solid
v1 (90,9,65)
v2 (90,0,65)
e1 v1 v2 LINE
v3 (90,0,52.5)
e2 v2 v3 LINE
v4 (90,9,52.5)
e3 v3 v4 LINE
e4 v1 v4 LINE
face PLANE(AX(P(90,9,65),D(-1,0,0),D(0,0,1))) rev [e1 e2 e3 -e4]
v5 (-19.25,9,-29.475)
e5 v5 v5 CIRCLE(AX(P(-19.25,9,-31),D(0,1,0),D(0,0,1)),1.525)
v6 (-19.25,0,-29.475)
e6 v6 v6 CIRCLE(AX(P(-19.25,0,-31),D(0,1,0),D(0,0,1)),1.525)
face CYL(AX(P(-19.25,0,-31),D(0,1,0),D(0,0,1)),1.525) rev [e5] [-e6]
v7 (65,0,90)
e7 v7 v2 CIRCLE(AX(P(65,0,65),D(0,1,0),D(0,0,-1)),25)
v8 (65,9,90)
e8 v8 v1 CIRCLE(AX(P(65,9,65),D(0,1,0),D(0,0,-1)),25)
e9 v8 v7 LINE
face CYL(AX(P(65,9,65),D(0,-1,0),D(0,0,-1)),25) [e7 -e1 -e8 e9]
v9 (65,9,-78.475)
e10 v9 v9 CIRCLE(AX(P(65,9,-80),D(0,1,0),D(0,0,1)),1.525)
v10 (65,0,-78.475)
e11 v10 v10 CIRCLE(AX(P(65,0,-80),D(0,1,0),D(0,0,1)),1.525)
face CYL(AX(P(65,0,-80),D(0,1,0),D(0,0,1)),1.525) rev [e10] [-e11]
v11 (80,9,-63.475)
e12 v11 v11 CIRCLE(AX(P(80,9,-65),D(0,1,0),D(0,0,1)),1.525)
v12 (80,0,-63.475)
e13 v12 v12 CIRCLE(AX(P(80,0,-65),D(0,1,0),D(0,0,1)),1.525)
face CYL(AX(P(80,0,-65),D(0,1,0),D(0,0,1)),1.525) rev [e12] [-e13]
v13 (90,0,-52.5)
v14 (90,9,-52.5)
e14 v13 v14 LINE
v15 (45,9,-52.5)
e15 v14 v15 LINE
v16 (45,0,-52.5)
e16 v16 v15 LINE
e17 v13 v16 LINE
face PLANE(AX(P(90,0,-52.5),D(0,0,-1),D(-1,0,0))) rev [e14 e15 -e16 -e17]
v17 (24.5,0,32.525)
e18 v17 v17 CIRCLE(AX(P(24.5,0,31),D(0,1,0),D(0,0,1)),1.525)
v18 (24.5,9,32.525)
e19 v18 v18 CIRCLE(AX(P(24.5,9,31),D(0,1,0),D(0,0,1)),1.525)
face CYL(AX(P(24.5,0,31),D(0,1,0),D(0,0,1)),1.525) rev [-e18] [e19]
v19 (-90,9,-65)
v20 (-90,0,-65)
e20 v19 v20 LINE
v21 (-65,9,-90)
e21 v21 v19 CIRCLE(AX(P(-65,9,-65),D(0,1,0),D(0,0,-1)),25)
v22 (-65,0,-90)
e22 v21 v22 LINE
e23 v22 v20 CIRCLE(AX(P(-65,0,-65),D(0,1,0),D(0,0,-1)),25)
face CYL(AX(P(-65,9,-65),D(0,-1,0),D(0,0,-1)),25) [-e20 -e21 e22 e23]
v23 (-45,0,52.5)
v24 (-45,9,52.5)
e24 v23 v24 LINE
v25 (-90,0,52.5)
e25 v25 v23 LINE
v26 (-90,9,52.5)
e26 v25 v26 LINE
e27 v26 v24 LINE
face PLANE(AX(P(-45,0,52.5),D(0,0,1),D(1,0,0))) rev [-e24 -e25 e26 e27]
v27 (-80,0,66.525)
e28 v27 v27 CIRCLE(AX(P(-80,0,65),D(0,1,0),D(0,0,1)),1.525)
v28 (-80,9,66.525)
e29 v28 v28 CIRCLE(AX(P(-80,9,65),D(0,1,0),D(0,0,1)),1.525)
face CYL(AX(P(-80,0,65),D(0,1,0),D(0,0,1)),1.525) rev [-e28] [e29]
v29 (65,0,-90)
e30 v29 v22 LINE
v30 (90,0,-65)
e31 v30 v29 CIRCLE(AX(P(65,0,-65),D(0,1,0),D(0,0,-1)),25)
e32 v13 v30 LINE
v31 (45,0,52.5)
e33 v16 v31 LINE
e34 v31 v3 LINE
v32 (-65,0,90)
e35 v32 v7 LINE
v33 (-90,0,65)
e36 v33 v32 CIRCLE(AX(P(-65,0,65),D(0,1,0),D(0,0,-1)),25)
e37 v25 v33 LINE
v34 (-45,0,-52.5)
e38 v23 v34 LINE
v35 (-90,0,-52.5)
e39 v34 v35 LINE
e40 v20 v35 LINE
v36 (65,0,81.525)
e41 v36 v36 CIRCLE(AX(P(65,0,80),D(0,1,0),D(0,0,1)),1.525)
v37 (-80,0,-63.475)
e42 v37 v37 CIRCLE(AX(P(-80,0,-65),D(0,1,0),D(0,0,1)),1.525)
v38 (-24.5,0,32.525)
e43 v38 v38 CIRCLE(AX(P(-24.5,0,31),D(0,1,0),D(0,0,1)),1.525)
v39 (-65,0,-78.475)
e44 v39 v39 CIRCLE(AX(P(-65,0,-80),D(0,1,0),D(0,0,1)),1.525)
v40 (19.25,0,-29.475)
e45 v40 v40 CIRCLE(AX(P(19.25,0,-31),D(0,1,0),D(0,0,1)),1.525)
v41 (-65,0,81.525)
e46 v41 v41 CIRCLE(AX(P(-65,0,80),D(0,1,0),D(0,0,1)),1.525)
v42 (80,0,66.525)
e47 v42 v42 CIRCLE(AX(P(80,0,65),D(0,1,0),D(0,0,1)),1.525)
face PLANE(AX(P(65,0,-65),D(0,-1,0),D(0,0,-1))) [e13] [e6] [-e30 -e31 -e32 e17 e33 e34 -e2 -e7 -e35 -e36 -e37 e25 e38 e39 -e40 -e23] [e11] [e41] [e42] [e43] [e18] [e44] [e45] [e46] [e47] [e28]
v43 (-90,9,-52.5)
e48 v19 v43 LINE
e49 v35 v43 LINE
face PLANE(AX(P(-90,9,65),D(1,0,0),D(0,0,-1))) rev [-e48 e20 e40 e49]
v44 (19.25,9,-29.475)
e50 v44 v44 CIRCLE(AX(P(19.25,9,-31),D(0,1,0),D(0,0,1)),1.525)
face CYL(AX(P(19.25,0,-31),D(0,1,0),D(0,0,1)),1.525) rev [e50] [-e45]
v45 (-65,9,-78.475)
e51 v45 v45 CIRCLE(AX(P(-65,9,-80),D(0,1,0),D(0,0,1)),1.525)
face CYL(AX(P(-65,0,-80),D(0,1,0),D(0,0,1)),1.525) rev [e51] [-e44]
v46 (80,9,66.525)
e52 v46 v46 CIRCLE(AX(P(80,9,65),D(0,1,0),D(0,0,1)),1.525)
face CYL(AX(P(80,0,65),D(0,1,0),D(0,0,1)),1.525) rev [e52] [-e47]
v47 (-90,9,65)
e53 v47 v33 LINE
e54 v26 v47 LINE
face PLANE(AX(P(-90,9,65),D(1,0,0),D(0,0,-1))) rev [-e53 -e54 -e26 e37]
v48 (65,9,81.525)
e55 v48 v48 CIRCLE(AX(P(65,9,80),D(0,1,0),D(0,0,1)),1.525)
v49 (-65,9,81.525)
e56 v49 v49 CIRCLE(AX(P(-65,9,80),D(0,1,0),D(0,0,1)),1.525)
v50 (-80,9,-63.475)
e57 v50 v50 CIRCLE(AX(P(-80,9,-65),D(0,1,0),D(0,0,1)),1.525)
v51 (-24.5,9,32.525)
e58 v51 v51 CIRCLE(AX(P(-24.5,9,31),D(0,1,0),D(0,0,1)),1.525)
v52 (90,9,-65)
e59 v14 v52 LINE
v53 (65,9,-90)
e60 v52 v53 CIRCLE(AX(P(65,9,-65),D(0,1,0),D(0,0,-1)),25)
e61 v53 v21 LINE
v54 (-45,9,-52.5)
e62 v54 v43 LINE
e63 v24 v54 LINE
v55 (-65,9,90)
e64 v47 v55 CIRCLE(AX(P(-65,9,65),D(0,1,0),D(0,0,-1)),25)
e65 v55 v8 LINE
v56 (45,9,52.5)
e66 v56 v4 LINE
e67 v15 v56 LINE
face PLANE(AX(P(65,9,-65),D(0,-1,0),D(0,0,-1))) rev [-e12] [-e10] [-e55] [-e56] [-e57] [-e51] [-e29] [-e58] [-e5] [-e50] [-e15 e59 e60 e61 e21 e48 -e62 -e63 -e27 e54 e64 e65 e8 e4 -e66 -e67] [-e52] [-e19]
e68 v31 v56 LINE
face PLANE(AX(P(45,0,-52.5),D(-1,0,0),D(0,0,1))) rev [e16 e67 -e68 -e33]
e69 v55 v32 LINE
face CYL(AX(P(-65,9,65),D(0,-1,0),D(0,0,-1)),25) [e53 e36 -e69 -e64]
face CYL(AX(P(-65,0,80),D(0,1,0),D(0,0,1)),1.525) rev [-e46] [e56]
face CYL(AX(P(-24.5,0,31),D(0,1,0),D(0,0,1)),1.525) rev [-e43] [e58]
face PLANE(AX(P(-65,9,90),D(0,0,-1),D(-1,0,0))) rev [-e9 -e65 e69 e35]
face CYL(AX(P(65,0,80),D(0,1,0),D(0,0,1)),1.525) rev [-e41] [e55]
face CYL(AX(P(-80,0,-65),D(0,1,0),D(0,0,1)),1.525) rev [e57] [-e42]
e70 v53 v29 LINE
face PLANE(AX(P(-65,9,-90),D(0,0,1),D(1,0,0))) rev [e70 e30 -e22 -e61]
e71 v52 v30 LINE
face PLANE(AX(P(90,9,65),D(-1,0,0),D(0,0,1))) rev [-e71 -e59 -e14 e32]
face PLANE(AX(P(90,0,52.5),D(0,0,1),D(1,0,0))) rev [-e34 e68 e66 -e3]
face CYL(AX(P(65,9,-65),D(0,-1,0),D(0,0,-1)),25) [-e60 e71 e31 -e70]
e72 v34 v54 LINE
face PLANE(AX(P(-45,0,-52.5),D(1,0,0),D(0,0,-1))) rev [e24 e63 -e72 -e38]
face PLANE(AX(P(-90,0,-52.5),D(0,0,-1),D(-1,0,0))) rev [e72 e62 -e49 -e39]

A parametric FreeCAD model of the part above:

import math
import FreeCAD as App
import Part
import Sketcher

V = App.Vector

doc = App.newDocument("Part")
body = doc.addObject("PartDesign::Body", "Body")

sketch1 = body.newObject("Sketcher::SketchObject", "Sketch")
sketch1.AttachmentSupport = (doc.getObject("XZ_Plane"), [""])
sketch1.MapMode = "FlatFace"
sketch1.addGeometry(Part.LineSegment(V(-65, 90, 0), V(65, 90, 0)), False)
sketch1.addGeometry(Part.ArcOfCircle(Part.Circle(V(65, 65, 0), V(0, 0, 1), 25), math.radians(0), math.radians(90)), False)
sketch1.addGeometry(Part.LineSegment(V(90, 65, 0), V(90, -65, 0)), False)
sketch1.addGeometry(Part.ArcOfCircle(Part.Circle(V(65, -65, 0), V(0, 0, 1), 25), math.radians(-90), math.radians(0)), False)
sketch1.addGeometry(Part.LineSegment(V(65, -90, 0), V(-65, -90, 0)), False)
sketch1.addGeometry(Part.ArcOfCircle(Part.Circle(V(-65, -65, 0), V(0, 0, 1), 25), math.radians(180), math.radians(270)), False)
sketch1.addGeometry(Part.LineSegment(V(-90, -65, 0), V(-90, 65, 0)), False)
sketch1.addGeometry(Part.ArcOfCircle(Part.Circle(V(-65, 65, 0), V(0, 0, 1), 25), math.radians(90), math.radians(180)), False)
sketch1.addConstraint(Sketcher.Constraint("Tangent", 0, 2, 1, 2))
sketch1.addConstraint(Sketcher.Constraint("Tangent", 1, 1, 2, 1))
sketch1.addConstraint(Sketcher.Constraint("Tangent", 2, 2, 3, 2))
sketch1.addConstraint(Sketcher.Constraint("Tangent", 3, 1, 4, 1))
sketch1.addConstraint(Sketcher.Constraint("Tangent", 4, 2, 5, 2))
sketch1.addConstraint(Sketcher.Constraint("Tangent", 5, 1, 6, 1))
sketch1.addConstraint(Sketcher.Constraint("Tangent", 6, 2, 7, 2))
sketch1.addConstraint(Sketcher.Constraint("Tangent", 7, 1, 0, 1))
sketch1.addConstraint(Sketcher.Constraint("Horizontal", 0))
sketch1.addConstraint(Sketcher.Constraint("Vertical", 2))
sketch1.addConstraint(Sketcher.Constraint("Horizontal", 4))
sketch1.addConstraint(Sketcher.Constraint("Vertical", 6))
sketch1.addConstraint(Sketcher.Constraint("Equal", 1, 3))
sketch1.addConstraint(Sketcher.Constraint("Equal", 3, 5))
sketch1.addConstraint(Sketcher.Constraint("Equal", 5, 7))
sketch1.addConstraint(Sketcher.Constraint("Symmetric", 1, 3, 5, 3, -1, 1))
sketch1.addConstraint(Sketcher.Constraint("Equal", 4, 2))
sketch1.addConstraint(Sketcher.Constraint("Radius", 1, 25.0))
sketch1.addConstraint(Sketcher.Constraint("DistanceX", 0, 1, 0, 2, 130.0))
pad1 = body.newObject("PartDesign::Pad", "Pad")
pad1.Profile = sketch1
pad1.Length = 9
pad1.Reversed = True

sketch2 = body.newObject("Sketcher::SketchObject", "Sketch001")
sketch2.AttachmentSupport = (doc.getObject("XZ_Plane"), [""])
sketch2.MapMode = "FlatFace"
sketch2.AttachmentOffset = App.Placement(V(0, 0, -9), App.Rotation())
sketch2.addGeometry(Part.Circle(V(-65, -80, 0), V(0, 0, 1), 1.5), False)
sketch2.addGeometry(Part.Circle(V(-80, -65, 0), V(0, 0, 1), 1.5), False)
sketch2.addGeometry(Part.Circle(V(80, -65, 0), V(0, 0, 1), 1.5), False)
sketch2.addGeometry(Part.Circle(V(80, 65, 0), V(0, 0, 1), 1.5), False)
sketch2.addGeometry(Part.Circle(V(65, -80, 0), V(0, 0, 1), 1.5), False)
sketch2.addGeometry(Part.Circle(V(65, 80, 0), V(0, 0, 1), 1.5), False)
sketch2.addGeometry(Part.Circle(V(-65, 80, 0), V(0, 0, 1), 1.5), False)
sketch2.addGeometry(Part.Circle(V(-80, 65, 0), V(0, 0, 1), 1.5), False)
sketch2.addConstraint(Sketcher.Constraint("Equal", 0, 1))
sketch2.addConstraint(Sketcher.Constraint("Equal", 1, 2))
sketch2.addConstraint(Sketcher.Constraint("Equal", 2, 3))
sketch2.addConstraint(Sketcher.Constraint("Equal", 3, 4))
sketch2.addConstraint(Sketcher.Constraint("Equal", 4, 5))
sketch2.addConstraint(Sketcher.Constraint("Equal", 5, 6))
sketch2.addConstraint(Sketcher.Constraint("Equal", 6, 7))
sketch2.addConstraint(Sketcher.Constraint("Symmetric", 1, 3, 3, 3, -1, 1))
sketch2.addConstraint(Sketcher.Constraint("Symmetric", 0, 3, 5, 3, -1, 1))
sketch2.addConstraint(Sketcher.Constraint("Symmetric", 4, 3, 6, 3, -1, 1))
sketch2.addConstraint(Sketcher.Constraint("Symmetric", 2, 3, 7, 3, -1, 1))
sketch2.addConstraint(Sketcher.Constraint("Symmetric", 1, 3, 2, 3, -2))
sketch2.addConstraint(Sketcher.Constraint("Symmetric", 0, 3, 4, 3, -2))
sketch2.addConstraint(Sketcher.Constraint("Diameter", 0, 3.05))
sketch2.addConstraint(Sketcher.Constraint("DistanceX", 0, 3, -1, 1, 65.0))
sketch2.addConstraint(Sketcher.Constraint("DistanceY", 0, 3, -1, 1, 80.0))
sketch2.addConstraint(Sketcher.Constraint("DistanceX", 1, 3, -1, 1, 80.0))
sketch2.addConstraint(Sketcher.Constraint("DistanceY", 1, 3, -1, 1, 65.0))
pocket1 = body.newObject("PartDesign::Pocket", "Pocket")
pocket1.Profile = sketch2
pocket1.Type = "ThroughAll"
pocket1.Reversed = True

sketch3 = body.newObject("Sketcher::SketchObject", "Sketch002")
sketch3.AttachmentSupport = (doc.getObject("XZ_Plane"), [""])
sketch3.MapMode = "FlatFace"
sketch3.AttachmentOffset = App.Placement(V(0, 0, -9), App.Rotation())
sketch3.addGeometry(Part.Circle(V(-24.5, 31, 0), V(0, 0, 1), 1.5), False)
sketch3.addGeometry(Part.Circle(V(24.5, 31, 0), V(0, 0, 1), 1.5), False)
sketch3.addGeometry(Part.Circle(V(-19.2, -31, 0), V(0, 0, 1), 1.5), False)
sketch3.addGeometry(Part.Circle(V(19.2, -31, 0), V(0, 0, 1), 1.5), False)
sketch3.addConstraint(Sketcher.Constraint("Equal", 0, 1))
sketch3.addConstraint(Sketcher.Constraint("Equal", 1, 2))
sketch3.addConstraint(Sketcher.Constraint("Equal", 2, 3))
sketch3.addConstraint(Sketcher.Constraint("Symmetric", 0, 3, 1, 3, -2))
sketch3.addConstraint(Sketcher.Constraint("Symmetric", 2, 3, 3, 3, -2))
sketch3.addConstraint(Sketcher.Constraint("Diameter", 0, 3.05))
sketch3.addConstraint(Sketcher.Constraint("DistanceY", -1, 1, 0, 3, 31.0))
sketch3.addConstraint(Sketcher.Constraint("DistanceY", 2, 3, -1, 1, 31.0))
sketch3.addConstraint(Sketcher.Constraint("DistanceX", 0, 3, 1, 3, 49.0))
sketch3.addConstraint(Sketcher.Constraint("DistanceX", 2, 3, 3, 3, 38.5))
pocket2 = body.newObject("PartDesign::Pocket", "Pocket001")
pocket2.Profile = sketch3
pocket2.Type = "ThroughAll"
pocket2.Reversed = True

sketch4 = body.newObject("Sketcher::SketchObject", "Sketch003")
sketch4.AttachmentSupport = (doc.getObject("XZ_Plane"), [""])
sketch4.MapMode = "FlatFace"
sketch4.AttachmentOffset = App.Placement(V(0, 0, -9), App.Rotation())
sketch4.addGeometry(Part.LineSegment(V(-90, -52, 0), V(-90, 52, 0)), False)
sketch4.addGeometry(Part.LineSegment(V(-90, 52, 0), V(-45, 52, 0)), False)
sketch4.addGeometry(Part.LineSegment(V(-45, 52, 0), V(-45, -52, 0)), False)
sketch4.addGeometry(Part.LineSegment(V(-45, -52, 0), V(-90, -52, 0)), False)
sketch4.addGeometry(Part.LineSegment(V(45, -52, 0), V(45, 52, 0)), False)
sketch4.addGeometry(Part.LineSegment(V(45, 52, 0), V(90, 52, 0)), False)
sketch4.addGeometry(Part.LineSegment(V(90, 52, 0), V(90, -52, 0)), False)
sketch4.addGeometry(Part.LineSegment(V(90, -52, 0), V(45, -52, 0)), False)
sketch4.addConstraint(Sketcher.Constraint("Coincident", 0, 2, 1, 1))
sketch4.addConstraint(Sketcher.Constraint("Coincident", 1, 2, 2, 1))
sketch4.addConstraint(Sketcher.Constraint("Coincident", 2, 2, 3, 1))
sketch4.addConstraint(Sketcher.Constraint("Coincident", 3, 2, 0, 1))
sketch4.addConstraint(Sketcher.Constraint("Coincident", 4, 2, 5, 1))
sketch4.addConstraint(Sketcher.Constraint("Coincident", 5, 2, 6, 1))
sketch4.addConstraint(Sketcher.Constraint("Coincident", 6, 2, 7, 1))
sketch4.addConstraint(Sketcher.Constraint("Coincident", 7, 2, 4, 1))
sketch4.addConstraint(Sketcher.Constraint("Vertical", 0))
sketch4.addConstraint(Sketcher.Constraint("Horizontal", 1))
sketch4.addConstraint(Sketcher.Constraint("Vertical", 2))
sketch4.addConstraint(Sketcher.Constraint("Horizontal", 3))
sketch4.addConstraint(Sketcher.Constraint("Vertical", 4))
sketch4.addConstraint(Sketcher.Constraint("Horizontal", 5))
sketch4.addConstraint(Sketcher.Constraint("Vertical", 6))
sketch4.addConstraint(Sketcher.Constraint("Horizontal", 7))
sketch4.addConstraint(Sketcher.Constraint("Symmetric", 2, 2, 4, 2, -1, 1))
sketch4.addConstraint(Sketcher.Constraint("Symmetric", 0, 2, 6, 2, -1, 1))
sketch4.addConstraint(Sketcher.Constraint("Horizontal", 1, 2, 4, 2))
sketch4.addConstraint(Sketcher.Constraint("DistanceX", 1, 1, 1, 2, 45.0))
sketch4.addConstraint(Sketcher.Constraint("DistanceY", 0, 1, 0, 2, 105.0))
sketch4.addConstraint(Sketcher.Constraint("DistanceX", 0, 2, -1, 1, 90.0))
pocket3 = body.newObject("PartDesign::Pocket", "Pocket002")
pocket3.Profile = sketch4
pocket3.Type = "ThroughAll"
pocket3.Reversed = True

doc.recompute()
